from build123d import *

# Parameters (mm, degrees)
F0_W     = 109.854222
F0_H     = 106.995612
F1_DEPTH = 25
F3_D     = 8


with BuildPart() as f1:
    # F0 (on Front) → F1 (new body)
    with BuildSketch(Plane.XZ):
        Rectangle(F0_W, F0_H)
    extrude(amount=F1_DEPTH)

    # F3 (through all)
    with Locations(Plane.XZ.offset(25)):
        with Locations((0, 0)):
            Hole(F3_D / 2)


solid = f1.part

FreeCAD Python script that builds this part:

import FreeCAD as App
import Part
import Sketcher
from FreeCAD import Vector


def add_polygon(sketch, points):
    """Adds a closed chain of lines whose ends are joined by coincident constraints."""
    first, n = sketch.GeometryCount, len(points)
    for a, b in zip(points, points[1:] + points[:1]):
        sketch.addGeometry(Part.LineSegment(App.Vector(*a, 0), App.Vector(*b, 0)), False)
    for i in range(n):
        sketch.addConstraint(Sketcher.Constraint("Coincident", first + i, 2, first + (i + 1) % n, 1))

doc = App.newDocument("Part")
body = doc.addObject("PartDesign::Body", "Body")

sketch1 = body.newObject("Sketcher::SketchObject", "Sketch")
sketch1.AttachmentSupport = (doc.getObject("XZ_Plane"), [""])
sketch1.MapMode = "FlatFace"
add_polygon(sketch1, [(-55, 53), (-55, -53), (55, -53), (55, 53)])
sketch1.addConstraint(Sketcher.Constraint("Vertical", 0))
sketch1.addConstraint(Sketcher.Constraint("Horizontal", 1))
sketch1.addConstraint(Sketcher.Constraint("Vertical", 2))
sketch1.addConstraint(Sketcher.Constraint("Horizontal", 3))
sketch1.addConstraint(Sketcher.Constraint("Symmetric", 0, 2, 2, 2, -1, 1))
sketch1.addConstraint(Sketcher.Constraint("DistanceX", 1, 1, 1, 2, 109.854222))
sketch1.addConstraint(Sketcher.Constraint("DistanceY", 0, 2, 0, 1, 106.995612))
pad1 = body.newObject("PartDesign::Pad", "Pad")
pad1.Profile = sketch1
pad1.Length = 25

sketch2 = body.newObject("Sketcher::SketchObject", "Sketch001")
sketch2.AttachmentSupport = (doc.getObject("XZ_Plane"), [""])
sketch2.MapMode = "FlatFace"
sketch2.AttachmentOffset = App.Placement(Vector(0, 0, 25), App.Rotation())
sketch2.addGeometry(Part.Circle(Vector(0, 0, 0), Vector(0, 0, 1), 4), False)
sketch2.addConstraint(Sketcher.Constraint("Coincident", 0, 3, -1, 1))
sketch2.addConstraint(Sketcher.Constraint("Diameter", 0, 8.0))
doc.recompute()
hole = body.newObject("PartDesign::Hole", "Hole")
hole.Profile = sketch2
hole.ThreadType = "None"
hole.Diameter = 8
hole.DepthType = "ThroughAll"

doc.recompute()
